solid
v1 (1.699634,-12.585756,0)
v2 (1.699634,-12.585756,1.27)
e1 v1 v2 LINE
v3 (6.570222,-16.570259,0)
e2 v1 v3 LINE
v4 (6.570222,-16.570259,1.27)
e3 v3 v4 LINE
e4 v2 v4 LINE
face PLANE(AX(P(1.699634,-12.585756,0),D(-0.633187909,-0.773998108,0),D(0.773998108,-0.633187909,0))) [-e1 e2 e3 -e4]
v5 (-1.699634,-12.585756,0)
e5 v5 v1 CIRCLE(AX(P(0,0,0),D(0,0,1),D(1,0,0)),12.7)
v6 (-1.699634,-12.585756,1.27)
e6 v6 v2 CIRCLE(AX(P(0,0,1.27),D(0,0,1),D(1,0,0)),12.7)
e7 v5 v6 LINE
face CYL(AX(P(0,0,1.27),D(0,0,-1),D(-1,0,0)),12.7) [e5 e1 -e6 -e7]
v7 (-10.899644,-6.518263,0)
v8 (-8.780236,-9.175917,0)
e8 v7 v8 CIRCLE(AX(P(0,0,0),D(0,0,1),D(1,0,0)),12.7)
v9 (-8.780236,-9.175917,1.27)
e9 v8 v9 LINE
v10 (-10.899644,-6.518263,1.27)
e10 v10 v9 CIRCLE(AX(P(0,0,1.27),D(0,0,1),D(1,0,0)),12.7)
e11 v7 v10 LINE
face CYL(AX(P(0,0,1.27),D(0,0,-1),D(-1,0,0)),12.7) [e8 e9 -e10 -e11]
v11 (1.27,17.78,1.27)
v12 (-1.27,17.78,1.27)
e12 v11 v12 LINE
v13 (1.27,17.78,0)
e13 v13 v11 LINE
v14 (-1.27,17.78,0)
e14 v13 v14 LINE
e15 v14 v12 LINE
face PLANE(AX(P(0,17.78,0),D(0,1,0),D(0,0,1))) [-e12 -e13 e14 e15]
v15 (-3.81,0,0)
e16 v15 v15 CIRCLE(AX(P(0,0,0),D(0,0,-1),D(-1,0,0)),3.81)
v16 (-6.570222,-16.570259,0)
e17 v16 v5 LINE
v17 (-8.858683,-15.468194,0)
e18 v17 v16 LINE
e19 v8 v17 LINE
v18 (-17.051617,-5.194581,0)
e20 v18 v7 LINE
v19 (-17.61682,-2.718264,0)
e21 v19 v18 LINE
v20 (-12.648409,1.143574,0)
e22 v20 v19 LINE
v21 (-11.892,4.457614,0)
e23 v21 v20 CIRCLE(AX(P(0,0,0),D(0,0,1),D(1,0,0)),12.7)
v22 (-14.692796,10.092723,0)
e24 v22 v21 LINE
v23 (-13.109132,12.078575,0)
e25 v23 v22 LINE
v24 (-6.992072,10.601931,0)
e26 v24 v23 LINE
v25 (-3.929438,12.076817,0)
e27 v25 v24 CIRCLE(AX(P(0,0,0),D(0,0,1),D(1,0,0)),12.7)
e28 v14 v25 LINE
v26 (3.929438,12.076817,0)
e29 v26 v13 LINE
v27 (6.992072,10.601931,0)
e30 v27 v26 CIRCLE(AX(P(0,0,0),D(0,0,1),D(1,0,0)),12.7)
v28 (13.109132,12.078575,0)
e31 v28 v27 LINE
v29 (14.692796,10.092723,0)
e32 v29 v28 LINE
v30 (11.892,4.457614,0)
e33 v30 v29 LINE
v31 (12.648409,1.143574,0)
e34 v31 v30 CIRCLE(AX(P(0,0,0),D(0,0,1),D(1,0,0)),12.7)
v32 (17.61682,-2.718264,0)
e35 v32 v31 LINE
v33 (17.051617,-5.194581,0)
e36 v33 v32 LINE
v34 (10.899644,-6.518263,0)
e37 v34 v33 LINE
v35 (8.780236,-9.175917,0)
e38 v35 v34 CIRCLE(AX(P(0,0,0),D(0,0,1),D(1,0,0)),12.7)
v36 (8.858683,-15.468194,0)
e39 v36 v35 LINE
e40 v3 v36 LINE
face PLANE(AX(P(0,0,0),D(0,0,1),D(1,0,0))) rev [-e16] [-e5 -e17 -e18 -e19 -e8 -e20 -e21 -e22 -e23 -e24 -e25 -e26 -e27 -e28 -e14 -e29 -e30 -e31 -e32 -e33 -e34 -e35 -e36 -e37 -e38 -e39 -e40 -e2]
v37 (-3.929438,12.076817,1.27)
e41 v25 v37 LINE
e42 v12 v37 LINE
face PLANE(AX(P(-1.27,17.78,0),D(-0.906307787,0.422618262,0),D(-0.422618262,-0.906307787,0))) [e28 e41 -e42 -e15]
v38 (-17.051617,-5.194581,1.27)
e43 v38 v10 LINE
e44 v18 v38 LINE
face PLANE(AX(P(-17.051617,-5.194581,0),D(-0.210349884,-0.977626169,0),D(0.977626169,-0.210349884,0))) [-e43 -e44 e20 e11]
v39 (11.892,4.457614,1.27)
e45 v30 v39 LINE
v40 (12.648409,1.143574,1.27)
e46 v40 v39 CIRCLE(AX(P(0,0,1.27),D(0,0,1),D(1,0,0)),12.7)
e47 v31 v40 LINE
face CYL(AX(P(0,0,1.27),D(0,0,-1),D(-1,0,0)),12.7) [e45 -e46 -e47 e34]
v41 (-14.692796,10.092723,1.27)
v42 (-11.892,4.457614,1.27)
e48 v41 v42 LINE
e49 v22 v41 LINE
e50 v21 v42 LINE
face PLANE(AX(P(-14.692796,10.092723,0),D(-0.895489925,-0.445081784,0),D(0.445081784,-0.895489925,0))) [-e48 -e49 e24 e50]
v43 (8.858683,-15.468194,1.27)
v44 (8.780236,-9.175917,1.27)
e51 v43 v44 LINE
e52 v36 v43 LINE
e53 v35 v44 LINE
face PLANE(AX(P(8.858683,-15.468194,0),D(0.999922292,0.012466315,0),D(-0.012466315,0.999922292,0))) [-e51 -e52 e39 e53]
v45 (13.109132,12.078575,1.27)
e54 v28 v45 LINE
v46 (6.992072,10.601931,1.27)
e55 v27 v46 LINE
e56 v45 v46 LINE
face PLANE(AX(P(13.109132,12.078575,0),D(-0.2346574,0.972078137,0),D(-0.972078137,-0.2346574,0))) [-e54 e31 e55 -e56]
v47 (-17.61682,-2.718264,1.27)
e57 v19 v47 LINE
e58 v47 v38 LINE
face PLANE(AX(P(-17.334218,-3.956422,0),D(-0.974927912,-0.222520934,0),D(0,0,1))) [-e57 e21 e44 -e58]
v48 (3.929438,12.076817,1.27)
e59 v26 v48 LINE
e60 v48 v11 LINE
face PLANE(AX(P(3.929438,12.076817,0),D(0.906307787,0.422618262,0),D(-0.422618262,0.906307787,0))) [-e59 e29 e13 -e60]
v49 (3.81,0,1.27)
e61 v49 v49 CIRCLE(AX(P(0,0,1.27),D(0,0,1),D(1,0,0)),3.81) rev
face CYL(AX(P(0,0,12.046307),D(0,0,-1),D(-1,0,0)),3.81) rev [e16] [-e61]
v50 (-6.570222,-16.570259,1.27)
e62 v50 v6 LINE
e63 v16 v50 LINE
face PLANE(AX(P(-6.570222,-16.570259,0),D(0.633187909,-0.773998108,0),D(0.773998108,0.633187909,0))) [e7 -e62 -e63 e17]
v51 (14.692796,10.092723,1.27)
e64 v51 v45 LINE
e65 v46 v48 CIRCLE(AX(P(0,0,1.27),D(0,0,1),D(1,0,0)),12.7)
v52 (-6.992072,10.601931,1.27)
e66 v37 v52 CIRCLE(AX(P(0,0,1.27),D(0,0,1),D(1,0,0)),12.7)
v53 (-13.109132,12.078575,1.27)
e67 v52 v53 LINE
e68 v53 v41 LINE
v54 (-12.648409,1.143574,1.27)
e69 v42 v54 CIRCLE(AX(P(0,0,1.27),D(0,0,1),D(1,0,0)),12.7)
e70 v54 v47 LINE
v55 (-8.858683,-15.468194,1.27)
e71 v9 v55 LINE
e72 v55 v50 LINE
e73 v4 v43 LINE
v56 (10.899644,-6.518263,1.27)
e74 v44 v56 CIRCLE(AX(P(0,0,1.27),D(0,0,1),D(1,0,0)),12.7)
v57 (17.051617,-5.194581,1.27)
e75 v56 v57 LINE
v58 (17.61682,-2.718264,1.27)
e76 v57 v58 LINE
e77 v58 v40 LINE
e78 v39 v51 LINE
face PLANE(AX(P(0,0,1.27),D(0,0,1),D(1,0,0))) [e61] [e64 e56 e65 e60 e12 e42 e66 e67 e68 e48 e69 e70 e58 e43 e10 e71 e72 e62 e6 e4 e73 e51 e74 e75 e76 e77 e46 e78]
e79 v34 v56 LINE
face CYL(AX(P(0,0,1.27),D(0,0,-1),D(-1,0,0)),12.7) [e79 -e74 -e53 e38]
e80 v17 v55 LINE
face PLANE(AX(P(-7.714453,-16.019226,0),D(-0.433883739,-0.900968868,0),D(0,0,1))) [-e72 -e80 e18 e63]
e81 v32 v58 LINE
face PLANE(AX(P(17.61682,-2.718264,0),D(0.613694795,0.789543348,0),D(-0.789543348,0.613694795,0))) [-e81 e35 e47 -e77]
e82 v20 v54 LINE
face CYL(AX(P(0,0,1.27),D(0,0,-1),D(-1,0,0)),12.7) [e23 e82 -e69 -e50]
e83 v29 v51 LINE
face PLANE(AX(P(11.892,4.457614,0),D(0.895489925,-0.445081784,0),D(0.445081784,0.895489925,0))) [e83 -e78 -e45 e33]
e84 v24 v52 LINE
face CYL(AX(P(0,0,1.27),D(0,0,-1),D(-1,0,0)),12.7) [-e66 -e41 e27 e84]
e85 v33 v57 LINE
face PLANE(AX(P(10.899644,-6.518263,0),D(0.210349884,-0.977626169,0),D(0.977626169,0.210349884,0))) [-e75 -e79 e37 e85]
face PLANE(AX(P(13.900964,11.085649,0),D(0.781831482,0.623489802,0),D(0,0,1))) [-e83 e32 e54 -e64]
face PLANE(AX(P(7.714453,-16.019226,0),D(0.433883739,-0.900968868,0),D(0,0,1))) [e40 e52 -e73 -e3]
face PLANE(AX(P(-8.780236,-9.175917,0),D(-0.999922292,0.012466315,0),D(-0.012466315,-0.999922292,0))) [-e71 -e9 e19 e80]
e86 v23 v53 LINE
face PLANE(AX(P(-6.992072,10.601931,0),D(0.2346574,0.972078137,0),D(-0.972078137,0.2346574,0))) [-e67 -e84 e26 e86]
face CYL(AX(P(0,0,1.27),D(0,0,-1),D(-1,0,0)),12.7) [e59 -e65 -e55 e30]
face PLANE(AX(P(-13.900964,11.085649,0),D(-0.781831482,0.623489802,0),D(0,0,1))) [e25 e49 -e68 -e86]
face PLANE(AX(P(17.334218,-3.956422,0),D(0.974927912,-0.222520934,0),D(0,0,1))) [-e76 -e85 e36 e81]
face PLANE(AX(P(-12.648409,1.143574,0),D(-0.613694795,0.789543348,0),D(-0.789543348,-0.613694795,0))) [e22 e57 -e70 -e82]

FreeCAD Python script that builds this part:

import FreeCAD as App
import Part
import Sketcher

V = App.Vector
Q = App.Units.Quantity


def add_polygon(sketch, points):
    """Adds a closed chain of lines whose ends are joined by coincident constraints."""
    first, n = sketch.GeometryCount, len(points)
    for a, b in zip(points, points[1:] + points[:1]):
        sketch.addGeometry(Part.LineSegment(App.Vector(*a, 0), App.Vector(*b, 0)), False)
    for i in range(n):
        sketch.addConstraint(Sketcher.Constraint("Coincident", first + i, 2, first + (i + 1) % n, 1))

doc = App.newDocument("Part")
body = doc.addObject("PartDesign::Body", "Body")

sketch1 = body.newObject("Sketcher::SketchObject", "Sketch")
sketch1.AttachmentSupport = (doc.getObject("XY_Plane"), [""])
sketch1.MapMode = "FlatFace"
sketch1.addGeometry(Part.Circle(V(0, 0, 0), V(0, 0, 1), 13), False)
sketch1.addConstraint([
    Sketcher.Constraint("Coincident", 0, 3, -1, 1),
    Sketcher.Constraint("Diameter", 0, Q("1 in")),
])
pad1 = body.newObject("PartDesign::Pad", "Pad")
pad1.Profile = sketch1
pad1.Length = Q("0.05 in")

sketch2 = body.newObject("Sketcher::SketchObject", "Sketch001")
sketch2.AttachmentSupport = (doc.getObject("XY_Plane"), [""])
sketch2.MapMode = "FlatFace"
sketch2.AttachmentOffset = App.Placement(V(0, 0, 0.05 * 25.4), App.Rotation())
add_polygon(sketch2, [(-1.3, 17.8), (-3.9, 12.1), (3.9, 12.1), (1.3, 17.8)])
sketch2.addConstraint([
    Sketcher.Constraint("Horizontal", 1),
    Sketcher.Constraint("Horizontal", 3),
    Sketcher.Constraint("Equal", 0, 2),
    Sketcher.Constraint("DistanceX", 3, 2, 3, 1, Q("0.1 in")),
    Sketcher.Constraint("Angle", 0, Q("-115 deg")),
    Sketcher.Constraint("DistanceY", -1, 1, 2, 2, Q("0.7 in")),
    Sketcher.Constraint("DistanceX", -1, 1, 2, 2, Q("0.05 in")),
    Sketcher.Constraint("DistanceX", 1, 1, 1, 2, 7.858875),
])
pad2 = body.newObject("PartDesign::Pad", "Pad001")
pad2.Profile = sketch2
pad2.Length = Q("0.05 in")
pad2.Reversed = True
doc.recompute()

polarpattern = body.newObject("PartDesign::PolarPattern", "PolarPattern")
polarpattern.Originals = [pad2]
polarpattern.Axis = (doc.getObject("Z_Axis"), [""])
polarpattern.Angle = 360
polarpattern.Occurrences = 7
body.Tip = polarpattern

sketch3 = body.newObject("Sketcher::SketchObject", "Sketch002")
sketch3.AttachmentSupport = (doc.getObject("XY_Plane"), [""])
sketch3.MapMode = "FlatFace"
sketch3.addGeometry(Part.Circle(V(0, 0, 0), V(0, 0, 1), 3.8), False)
sketch3.addConstraint([
    Sketcher.Constraint("Coincident", 0, 3, -1, 1),
    Sketcher.Constraint("Diameter", 0, Q("0.3 in")),
])
pocket1 = body.newObject("PartDesign::Pocket", "Pocket")
pocket1.Profile = sketch3
pocket1.Length = Q("0.05 in")
pocket1.Reversed = True

doc.recompute()
